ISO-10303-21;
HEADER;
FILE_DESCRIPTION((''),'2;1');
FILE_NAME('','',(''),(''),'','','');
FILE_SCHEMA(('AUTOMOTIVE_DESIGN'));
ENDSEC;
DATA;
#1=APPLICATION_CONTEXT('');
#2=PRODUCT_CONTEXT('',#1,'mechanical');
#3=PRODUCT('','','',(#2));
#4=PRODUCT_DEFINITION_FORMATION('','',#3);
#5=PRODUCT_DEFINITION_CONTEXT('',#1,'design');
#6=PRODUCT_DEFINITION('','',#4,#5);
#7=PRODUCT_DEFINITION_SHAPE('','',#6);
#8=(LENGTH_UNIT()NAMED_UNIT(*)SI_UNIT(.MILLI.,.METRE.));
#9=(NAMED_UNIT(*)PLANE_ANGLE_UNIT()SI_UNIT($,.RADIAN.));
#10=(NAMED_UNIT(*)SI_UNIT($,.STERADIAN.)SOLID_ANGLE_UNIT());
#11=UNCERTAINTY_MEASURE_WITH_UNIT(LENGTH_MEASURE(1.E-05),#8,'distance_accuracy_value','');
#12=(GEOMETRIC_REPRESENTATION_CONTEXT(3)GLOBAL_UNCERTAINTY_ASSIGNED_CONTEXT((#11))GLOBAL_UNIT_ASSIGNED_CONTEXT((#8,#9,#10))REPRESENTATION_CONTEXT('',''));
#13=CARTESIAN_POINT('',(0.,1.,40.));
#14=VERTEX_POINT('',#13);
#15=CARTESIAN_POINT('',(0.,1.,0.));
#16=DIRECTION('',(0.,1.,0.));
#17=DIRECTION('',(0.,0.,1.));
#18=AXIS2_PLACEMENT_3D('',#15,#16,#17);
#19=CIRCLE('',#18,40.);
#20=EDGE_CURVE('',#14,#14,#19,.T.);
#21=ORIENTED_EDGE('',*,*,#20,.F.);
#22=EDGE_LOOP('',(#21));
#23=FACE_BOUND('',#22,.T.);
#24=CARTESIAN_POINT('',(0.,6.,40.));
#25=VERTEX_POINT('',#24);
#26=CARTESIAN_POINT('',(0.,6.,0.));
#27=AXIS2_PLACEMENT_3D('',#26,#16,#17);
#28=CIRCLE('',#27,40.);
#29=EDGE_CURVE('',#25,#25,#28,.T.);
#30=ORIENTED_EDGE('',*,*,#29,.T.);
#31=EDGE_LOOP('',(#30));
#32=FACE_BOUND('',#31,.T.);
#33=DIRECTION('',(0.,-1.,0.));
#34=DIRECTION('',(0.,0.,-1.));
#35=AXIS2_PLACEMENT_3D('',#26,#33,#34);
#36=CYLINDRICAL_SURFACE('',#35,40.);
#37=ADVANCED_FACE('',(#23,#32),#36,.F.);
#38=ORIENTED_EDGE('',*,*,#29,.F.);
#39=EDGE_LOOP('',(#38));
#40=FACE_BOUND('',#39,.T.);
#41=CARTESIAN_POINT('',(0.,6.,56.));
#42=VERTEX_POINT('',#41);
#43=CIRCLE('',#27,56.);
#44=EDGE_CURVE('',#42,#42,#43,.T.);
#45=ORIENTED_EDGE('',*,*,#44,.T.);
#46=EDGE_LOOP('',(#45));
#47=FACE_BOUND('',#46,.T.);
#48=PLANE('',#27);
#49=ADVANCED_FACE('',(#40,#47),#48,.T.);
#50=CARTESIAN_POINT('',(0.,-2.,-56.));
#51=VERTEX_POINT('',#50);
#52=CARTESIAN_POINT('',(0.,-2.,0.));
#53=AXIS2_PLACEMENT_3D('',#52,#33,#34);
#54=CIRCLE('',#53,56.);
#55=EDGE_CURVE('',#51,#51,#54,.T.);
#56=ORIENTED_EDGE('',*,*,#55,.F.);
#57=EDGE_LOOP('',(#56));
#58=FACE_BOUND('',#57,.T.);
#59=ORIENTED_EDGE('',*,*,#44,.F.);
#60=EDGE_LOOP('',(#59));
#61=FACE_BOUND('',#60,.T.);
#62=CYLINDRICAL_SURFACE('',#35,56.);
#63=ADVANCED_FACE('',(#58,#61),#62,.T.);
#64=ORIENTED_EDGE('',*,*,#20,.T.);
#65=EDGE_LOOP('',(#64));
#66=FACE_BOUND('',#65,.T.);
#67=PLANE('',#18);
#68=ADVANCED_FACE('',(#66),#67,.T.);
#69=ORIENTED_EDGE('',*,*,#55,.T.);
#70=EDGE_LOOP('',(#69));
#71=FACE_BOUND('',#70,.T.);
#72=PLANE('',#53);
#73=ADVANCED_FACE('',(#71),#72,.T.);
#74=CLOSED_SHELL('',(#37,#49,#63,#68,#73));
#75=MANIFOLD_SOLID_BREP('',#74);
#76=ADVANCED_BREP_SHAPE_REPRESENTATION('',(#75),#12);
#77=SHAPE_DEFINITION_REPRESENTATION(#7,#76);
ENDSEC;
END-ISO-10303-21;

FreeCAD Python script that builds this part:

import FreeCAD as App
import Part
import Sketcher

V = App.Vector

doc = App.newDocument("Part")
body = doc.addObject("PartDesign::Body", "Body")

sketch1 = doc.addObject("Sketcher::SketchObject", "Sketch")
body.addObject(sketch1)
sketch1.AttachmentSupport = (doc.XZ_Plane, [""])
sketch1.MapMode = "FlatFace"
sketch1.addGeometry(Part.Circle(V(0, 0, 0), V(0, 0, 1), 56), False)
sketch1.addGeometry(Part.Circle(V(0, 0, 0), V(0, 0, 1), 40), False)
sketch1.addConstraint(Sketcher.Constraint("Coincident", 0, 3, -1, 1))
sketch1.addConstraint(Sketcher.Constraint("Coincident", 1, 3, -1, 1))
sketch1.addConstraint(Sketcher.Constraint("Diameter", 0, 112.0))
sketch1.addConstraint(Sketcher.Constraint("Diameter", 1, 80.0))
pad1 = doc.addObject("PartDesign::Pad", "Pad")
body.addObject(pad1)
pad1.Profile = sketch1
pad1.Length = 6
pad1.Reversed = True

sketch2 = doc.addObject("Sketcher::SketchObject", "Sketch001")
body.addObject(sketch2)
sketch2.AttachmentSupport = (doc.XZ_Plane, [""])
sketch2.MapMode = "FlatFace"
sketch2.AttachmentOffset = App.Placement(V(0, 0, 2), App.Rotation())
sketch2.addGeometry(Part.Circle(V(0, 0, 0), V(0, 0, 1), 56), False)
sketch2.addConstraint(Sketcher.Constraint("Coincident", 0, 3, -1, 1))
sketch2.addConstraint(Sketcher.Constraint("Diameter", 0, 112.0))
pad2 = doc.addObject("PartDesign::Pad", "Pad001")
body.addObject(pad2)
pad2.Profile = sketch2
pad2.Length = 2
pad2.Reversed = True

sketch3 = doc.addObject("Sketcher::SketchObject", "Sketch002")
body.addObject(sketch3)
sketch3.AttachmentSupport = (doc.XZ_Plane, [""])
sketch3.MapMode = "FlatFace"
sketch3.addGeometry(Part.Circle(V(0, 0, 0), V(0, 0, 1), 40), False)
sketch3.addConstraint(Sketcher.Constraint("Coincident", 0, 3, -1, 1))
sketch3.addConstraint(Sketcher.Constraint("Diameter", 0, 80.0))
pad3 = doc.addObject("PartDesign::Pad", "Pad002")
body.addObject(pad3)
pad3.Profile = sketch3
pad3.Length = 1
pad3.Reversed = True

doc.recompute()
